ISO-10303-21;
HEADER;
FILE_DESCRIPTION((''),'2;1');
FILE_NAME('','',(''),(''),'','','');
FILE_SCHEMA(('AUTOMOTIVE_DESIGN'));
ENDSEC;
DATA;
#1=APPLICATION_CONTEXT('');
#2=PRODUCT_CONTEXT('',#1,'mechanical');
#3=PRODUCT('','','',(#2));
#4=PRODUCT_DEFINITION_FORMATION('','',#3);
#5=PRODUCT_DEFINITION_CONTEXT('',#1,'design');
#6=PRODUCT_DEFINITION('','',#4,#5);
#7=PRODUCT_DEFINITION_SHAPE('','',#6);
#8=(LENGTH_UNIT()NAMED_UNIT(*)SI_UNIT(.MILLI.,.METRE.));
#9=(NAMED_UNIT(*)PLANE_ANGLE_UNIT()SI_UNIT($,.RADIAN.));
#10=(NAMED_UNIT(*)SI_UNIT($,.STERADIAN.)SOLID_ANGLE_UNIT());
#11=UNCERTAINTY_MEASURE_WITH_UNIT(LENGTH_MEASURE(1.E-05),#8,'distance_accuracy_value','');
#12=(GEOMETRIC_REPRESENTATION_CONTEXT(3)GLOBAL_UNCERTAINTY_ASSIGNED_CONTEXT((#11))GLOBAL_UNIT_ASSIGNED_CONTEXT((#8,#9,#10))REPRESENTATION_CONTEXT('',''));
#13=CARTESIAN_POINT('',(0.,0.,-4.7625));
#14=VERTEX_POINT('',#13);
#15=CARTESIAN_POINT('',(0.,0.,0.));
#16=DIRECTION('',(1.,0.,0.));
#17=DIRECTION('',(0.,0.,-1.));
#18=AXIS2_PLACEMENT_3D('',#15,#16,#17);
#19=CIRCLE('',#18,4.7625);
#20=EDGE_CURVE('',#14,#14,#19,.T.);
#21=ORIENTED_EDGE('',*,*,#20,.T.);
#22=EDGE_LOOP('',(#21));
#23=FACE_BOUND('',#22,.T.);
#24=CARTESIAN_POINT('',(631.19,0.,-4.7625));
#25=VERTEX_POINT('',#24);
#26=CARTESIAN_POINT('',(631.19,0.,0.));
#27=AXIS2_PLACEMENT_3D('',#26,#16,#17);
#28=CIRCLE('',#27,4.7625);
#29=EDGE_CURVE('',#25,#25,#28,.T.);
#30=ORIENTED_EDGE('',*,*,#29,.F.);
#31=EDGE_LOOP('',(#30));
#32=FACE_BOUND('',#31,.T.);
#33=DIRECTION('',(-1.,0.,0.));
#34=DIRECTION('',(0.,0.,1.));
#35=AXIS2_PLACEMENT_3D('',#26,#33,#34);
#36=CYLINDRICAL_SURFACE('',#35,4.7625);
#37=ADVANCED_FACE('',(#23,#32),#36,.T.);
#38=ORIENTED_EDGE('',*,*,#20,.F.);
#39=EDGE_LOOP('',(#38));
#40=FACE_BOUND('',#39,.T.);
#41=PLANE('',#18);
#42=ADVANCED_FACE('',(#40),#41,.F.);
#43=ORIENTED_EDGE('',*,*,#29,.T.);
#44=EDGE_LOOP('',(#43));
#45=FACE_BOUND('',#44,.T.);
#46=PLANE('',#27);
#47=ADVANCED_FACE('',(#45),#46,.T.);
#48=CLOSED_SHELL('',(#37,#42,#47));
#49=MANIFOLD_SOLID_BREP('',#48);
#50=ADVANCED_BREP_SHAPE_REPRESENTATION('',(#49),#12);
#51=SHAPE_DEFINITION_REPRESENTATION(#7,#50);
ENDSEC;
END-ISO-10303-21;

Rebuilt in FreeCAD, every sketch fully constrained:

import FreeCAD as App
import Part
import Sketcher
from FreeCAD import Vector
Q = App.Units.Quantity

doc = App.newDocument("Part")
body = doc.addObject("PartDesign::Body", "Body")

sketch1 = body.newObject("Sketcher::SketchObject", "Sketch")
sketch1.AttachmentSupport = (doc.getObject("YZ_Plane"), [""])
sketch1.MapMode = "FlatFace"
sketch1.addGeometry(Part.Circle(Vector(0, 0, 0), Vector(0, 0, 1), 4.8), False)
sketch1.addConstraint(Sketcher.Constraint("Coincident", 0, 3, -1, 1))
sketch1.addConstraint(Sketcher.Constraint("Diameter", 0, Q("0.375 in")))
pad1 = body.newObject("PartDesign::Pad", "Pad")
pad1.Profile = sketch1
pad1.Length = Q("24.85 in")

doc.recompute()
